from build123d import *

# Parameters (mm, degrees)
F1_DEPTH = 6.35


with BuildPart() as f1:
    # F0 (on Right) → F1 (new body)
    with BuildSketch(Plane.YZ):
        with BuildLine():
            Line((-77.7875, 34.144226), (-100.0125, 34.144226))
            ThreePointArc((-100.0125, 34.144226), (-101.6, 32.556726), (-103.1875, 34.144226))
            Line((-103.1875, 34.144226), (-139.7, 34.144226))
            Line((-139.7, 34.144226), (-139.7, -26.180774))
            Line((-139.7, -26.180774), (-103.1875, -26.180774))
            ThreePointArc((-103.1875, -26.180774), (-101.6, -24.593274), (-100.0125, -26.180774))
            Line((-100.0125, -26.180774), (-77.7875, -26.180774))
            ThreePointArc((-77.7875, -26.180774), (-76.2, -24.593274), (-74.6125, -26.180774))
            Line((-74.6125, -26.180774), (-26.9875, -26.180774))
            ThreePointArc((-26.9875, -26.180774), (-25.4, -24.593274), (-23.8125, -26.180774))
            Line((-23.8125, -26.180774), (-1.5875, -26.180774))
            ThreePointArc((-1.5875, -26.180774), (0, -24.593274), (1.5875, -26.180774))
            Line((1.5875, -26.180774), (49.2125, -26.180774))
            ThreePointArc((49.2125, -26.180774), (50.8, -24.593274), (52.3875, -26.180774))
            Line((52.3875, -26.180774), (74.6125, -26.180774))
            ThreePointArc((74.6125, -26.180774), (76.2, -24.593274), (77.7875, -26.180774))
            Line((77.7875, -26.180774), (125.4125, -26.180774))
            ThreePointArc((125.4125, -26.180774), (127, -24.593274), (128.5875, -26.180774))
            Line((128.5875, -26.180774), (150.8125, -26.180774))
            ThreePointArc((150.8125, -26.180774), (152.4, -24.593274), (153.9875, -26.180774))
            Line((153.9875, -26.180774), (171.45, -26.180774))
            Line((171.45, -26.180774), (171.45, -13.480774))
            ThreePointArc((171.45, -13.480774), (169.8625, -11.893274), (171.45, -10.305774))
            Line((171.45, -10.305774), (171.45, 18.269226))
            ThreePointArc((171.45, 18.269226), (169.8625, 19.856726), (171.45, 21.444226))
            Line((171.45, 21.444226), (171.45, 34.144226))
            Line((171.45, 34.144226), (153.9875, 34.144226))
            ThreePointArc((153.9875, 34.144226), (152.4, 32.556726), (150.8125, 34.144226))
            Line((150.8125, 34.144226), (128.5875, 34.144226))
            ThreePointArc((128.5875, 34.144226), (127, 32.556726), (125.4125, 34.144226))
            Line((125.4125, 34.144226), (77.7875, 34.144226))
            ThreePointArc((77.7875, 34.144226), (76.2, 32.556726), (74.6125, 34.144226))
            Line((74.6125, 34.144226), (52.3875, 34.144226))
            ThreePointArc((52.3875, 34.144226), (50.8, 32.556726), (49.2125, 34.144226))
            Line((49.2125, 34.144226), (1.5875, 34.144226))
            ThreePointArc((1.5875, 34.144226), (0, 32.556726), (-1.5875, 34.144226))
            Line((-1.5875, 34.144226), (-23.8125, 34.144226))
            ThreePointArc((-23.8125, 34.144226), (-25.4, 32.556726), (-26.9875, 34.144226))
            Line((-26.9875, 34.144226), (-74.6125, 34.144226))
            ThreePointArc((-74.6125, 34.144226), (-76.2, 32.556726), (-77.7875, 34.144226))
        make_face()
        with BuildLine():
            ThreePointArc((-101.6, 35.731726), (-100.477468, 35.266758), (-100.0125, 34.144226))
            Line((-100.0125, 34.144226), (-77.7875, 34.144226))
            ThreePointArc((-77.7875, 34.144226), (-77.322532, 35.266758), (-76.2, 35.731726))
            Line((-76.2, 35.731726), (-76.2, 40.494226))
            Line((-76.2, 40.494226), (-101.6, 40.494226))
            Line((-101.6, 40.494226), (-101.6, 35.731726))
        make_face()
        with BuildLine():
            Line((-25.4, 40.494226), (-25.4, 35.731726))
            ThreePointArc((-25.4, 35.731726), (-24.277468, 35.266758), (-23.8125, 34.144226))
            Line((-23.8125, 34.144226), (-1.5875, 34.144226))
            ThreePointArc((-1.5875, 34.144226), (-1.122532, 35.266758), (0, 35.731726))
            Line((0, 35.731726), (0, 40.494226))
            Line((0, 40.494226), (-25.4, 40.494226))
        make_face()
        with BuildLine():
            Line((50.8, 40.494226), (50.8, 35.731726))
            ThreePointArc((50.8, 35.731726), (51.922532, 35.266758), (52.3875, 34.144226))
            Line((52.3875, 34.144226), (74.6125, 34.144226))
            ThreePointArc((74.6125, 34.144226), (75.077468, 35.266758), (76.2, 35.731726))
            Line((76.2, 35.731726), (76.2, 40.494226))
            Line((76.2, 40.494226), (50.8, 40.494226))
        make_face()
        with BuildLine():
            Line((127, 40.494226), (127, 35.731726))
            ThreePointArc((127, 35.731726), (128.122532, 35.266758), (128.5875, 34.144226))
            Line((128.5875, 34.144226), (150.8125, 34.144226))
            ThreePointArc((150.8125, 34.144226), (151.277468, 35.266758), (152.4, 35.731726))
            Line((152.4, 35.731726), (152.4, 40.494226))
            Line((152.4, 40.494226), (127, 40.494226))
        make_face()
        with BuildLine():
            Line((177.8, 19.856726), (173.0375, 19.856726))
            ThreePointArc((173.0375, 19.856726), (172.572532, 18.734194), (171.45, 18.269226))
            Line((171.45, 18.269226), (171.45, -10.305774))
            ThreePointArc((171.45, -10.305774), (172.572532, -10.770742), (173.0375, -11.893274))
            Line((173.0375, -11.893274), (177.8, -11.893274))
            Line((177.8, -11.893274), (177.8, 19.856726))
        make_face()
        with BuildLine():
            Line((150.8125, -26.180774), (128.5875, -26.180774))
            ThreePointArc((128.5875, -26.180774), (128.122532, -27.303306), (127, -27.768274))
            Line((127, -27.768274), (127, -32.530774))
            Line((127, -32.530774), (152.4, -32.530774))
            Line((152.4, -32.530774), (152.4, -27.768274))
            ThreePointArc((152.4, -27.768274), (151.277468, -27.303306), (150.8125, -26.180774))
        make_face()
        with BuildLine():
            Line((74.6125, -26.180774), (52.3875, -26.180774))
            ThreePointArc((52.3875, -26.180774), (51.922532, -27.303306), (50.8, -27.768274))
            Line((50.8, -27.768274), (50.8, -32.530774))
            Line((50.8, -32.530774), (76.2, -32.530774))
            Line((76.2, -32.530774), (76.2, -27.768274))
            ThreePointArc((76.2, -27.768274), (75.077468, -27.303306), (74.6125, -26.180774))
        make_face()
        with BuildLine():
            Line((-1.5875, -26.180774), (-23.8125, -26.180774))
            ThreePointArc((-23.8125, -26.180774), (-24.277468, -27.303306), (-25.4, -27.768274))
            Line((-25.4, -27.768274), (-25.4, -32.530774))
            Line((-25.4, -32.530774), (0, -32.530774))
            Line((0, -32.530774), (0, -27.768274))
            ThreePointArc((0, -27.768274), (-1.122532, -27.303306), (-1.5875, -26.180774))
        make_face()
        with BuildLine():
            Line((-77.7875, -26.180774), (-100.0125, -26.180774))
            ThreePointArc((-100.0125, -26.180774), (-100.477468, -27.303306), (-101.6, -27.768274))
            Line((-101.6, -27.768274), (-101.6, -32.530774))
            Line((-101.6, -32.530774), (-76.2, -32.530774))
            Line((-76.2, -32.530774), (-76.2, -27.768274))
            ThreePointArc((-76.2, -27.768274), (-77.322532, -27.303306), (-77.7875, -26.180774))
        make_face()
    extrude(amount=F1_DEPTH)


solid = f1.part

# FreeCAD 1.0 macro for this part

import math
import FreeCAD as App
import Part
import Sketcher

V = App.Vector
Q = App.Units.Quantity

doc = App.newDocument("Part")
body = doc.addObject("PartDesign::Body", "Body")

sketch1 = body.newObject("Sketcher::SketchObject", "Sketch")
sketch1.AttachmentSupport = (doc.getObject("YZ_Plane"), [""])
sketch1.MapMode = "FlatFace"
sketch1.addGeometry([
    Part.ArcOfCircle(Part.Circle(V(-101.6, 34.1, 0), V(0, 0, 1), 1.6), math.radians(180), math.radians(360)),
    Part.LineSegment(V(-103.2, 34.1, 0), V(-139.7, 34.1, 0)),
    Part.LineSegment(V(-139.7, 34.1, 0), V(-139.7, -26.2, 0)),
    Part.LineSegment(V(-139.7, -26.2, 0), V(-103.2, -26.2, 0)),
    Part.ArcOfCircle(Part.Circle(V(-101.6, -26.2, 0), V(0, 0, 1), 1.6), math.radians(0), math.radians(180)),
    Part.ArcOfCircle(Part.Circle(V(-101.6, -26.2, 0), V(0, 0, 1), 1.6), math.radians(-90), math.radians(0)),
    Part.LineSegment(V(-101.6, -27.8, 0), V(-101.6, -32.5, 0)),
    Part.LineSegment(V(-101.6, -32.5, 0), V(-76.2, -32.5, 0)),
    Part.LineSegment(V(-76.2, -32.5, 0), V(-76.2, -27.8, 0)),
    Part.ArcOfCircle(Part.Circle(V(-76.2, -26.2, 0), V(0, 0, 1), 1.6), math.radians(-180), math.radians(-90)),
    Part.ArcOfCircle(Part.Circle(V(-76.2, -26.2, 0), V(0, 0, 1), 1.6), math.radians(0), math.radians(180)),
    Part.LineSegment(V(-74.6, -26.2, 0), V(-27, -26.2, 0)),
    Part.ArcOfCircle(Part.Circle(V(-25.4, -26.2, 0), V(0, 0, 1), 1.6), math.radians(0), math.radians(180)),
    Part.ArcOfCircle(Part.Circle(V(-25.4, -26.2, 0), V(0, 0, 1), 1.6), math.radians(-90), math.radians(0)),
    Part.LineSegment(V(-25.4, -27.8, 0), V(-25.4, -32.5, 0)),
    Part.LineSegment(V(-25.4, -32.5, 0), V(0, -32.5, 0)),
    Part.LineSegment(V(0, -32.5, 0), V(0, -27.8, 0)),
    Part.ArcOfCircle(Part.Circle(V(0, -26.2, 0), V(0, 0, 1), 1.6), math.radians(-180), math.radians(-90)),
    Part.ArcOfCircle(Part.Circle(V(0, -26.2, 0), V(0, 0, 1), 1.6), math.radians(0), math.radians(180)),
    Part.LineSegment(V(1.6, -26.2, 0), V(49.2, -26.2, 0)),
    Part.ArcOfCircle(Part.Circle(V(50.8, -26.2, 0), V(0, 0, 1), 1.6), math.radians(0), math.radians(180)),
    Part.ArcOfCircle(Part.Circle(V(50.8, -26.2, 0), V(0, 0, 1), 1.6), math.radians(-90), math.radians(0)),
    Part.LineSegment(V(50.8, -27.8, 0), V(50.8, -32.5, 0)),
    Part.LineSegment(V(50.8, -32.5, 0), V(76.2, -32.5, 0)),
    Part.LineSegment(V(76.2, -32.5, 0), V(76.2, -27.8, 0)),
    Part.ArcOfCircle(Part.Circle(V(76.2, -26.2, 0), V(0, 0, 1), 1.6), math.radians(-180), math.radians(-90)),
    Part.ArcOfCircle(Part.Circle(V(76.2, -26.2, 0), V(0, 0, 1), 1.6), math.radians(0), math.radians(180)),
    Part.LineSegment(V(77.8, -26.2, 0), V(125.4, -26.2, 0)),
    Part.ArcOfCircle(Part.Circle(V(127, -26.2, 0), V(0, 0, 1), 1.6), math.radians(0), math.radians(180)),
    Part.ArcOfCircle(Part.Circle(V(127, -26.2, 0), V(0, 0, 1), 1.6), math.radians(-90), math.radians(0)),
    Part.LineSegment(V(127, -27.8, 0), V(127, -32.5, 0)),
    Part.LineSegment(V(127, -32.5, 0), V(152.4, -32.5, 0)),
    Part.LineSegment(V(152.4, -32.5, 0), V(152.4, -27.8, 0)),
    Part.ArcOfCircle(Part.Circle(V(152.4, -26.2, 0), V(0, 0, 1), 1.6), math.radians(-180), math.radians(-90)),
    Part.ArcOfCircle(Part.Circle(V(152.4, -26.2, 0), V(0, 0, 1), 1.6), math.radians(0), math.radians(180)),
    Part.LineSegment(V(154, -26.2, 0), V(171.4, -26.2, 0)),
    Part.LineSegment(V(171.4, -26.2, 0), V(171.4, -13.5, 0)),
    Part.ArcOfCircle(Part.Circle(V(171.4, -11.9, 0), V(0, 0, 1), 1.6), math.radians(90), math.radians(270)),
    Part.ArcOfCircle(Part.Circle(V(171.4, -11.9, 0), V(0, 0, 1), 1.6), math.radians(0), math.radians(90)),
    Part.LineSegment(V(173, -11.9, 0), V(177.8, -11.9, 0)),
    Part.LineSegment(V(177.8, -11.9, 0), V(177.8, 19.9, 0)),
    Part.LineSegment(V(177.8, 19.9, 0), V(173, 19.9, 0)),
    Part.ArcOfCircle(Part.Circle(V(171.4, 19.9, 0), V(0, 0, 1), 1.6), math.radians(-90), math.radians(0)),
    Part.ArcOfCircle(Part.Circle(V(171.4, 19.9, 0), V(0, 0, 1), 1.6), math.radians(90), math.radians(270)),
    Part.LineSegment(V(171.4, 21.4, 0), V(171.4, 34.1, 0)),
    Part.LineSegment(V(171.4, 34.1, 0), V(154, 34.1, 0)),
    Part.ArcOfCircle(Part.Circle(V(152.4, 34.1, 0), V(0, 0, 1), 1.6), math.radians(180), math.radians(360)),
    Part.ArcOfCircle(Part.Circle(V(152.4, 34.1, 0), V(0, 0, 1), 1.6), math.radians(90), math.radians(180)),
    Part.LineSegment(V(152.4, 35.7, 0), V(152.4, 40.5, 0)),
    Part.LineSegment(V(152.4, 40.5, 0), V(127, 40.5, 0)),
    Part.LineSegment(V(127, 40.5, 0), V(127, 35.7, 0)),
    Part.ArcOfCircle(Part.Circle(V(127, 34.1, 0), V(0, 0, 1), 1.6), math.radians(0), math.radians(90)),
    Part.ArcOfCircle(Part.Circle(V(127, 34.1, 0), V(0, 0, 1), 1.6), math.radians(180), math.radians(360)),
    Part.LineSegment(V(125.4, 34.1, 0), V(77.8, 34.1, 0)),
    Part.ArcOfCircle(Part.Circle(V(76.2, 34.1, 0), V(0, 0, 1), 1.6), math.radians(180), math.radians(360)),
    Part.ArcOfCircle(Part.Circle(V(76.2, 34.1, 0), V(0, 0, 1), 1.6), math.radians(90), math.radians(180)),
    Part.LineSegment(V(76.2, 35.7, 0), V(76.2, 40.5, 0)),
    Part.LineSegment(V(76.2, 40.5, 0), V(50.8, 40.5, 0)),
    Part.LineSegment(V(50.8, 40.5, 0), V(50.8, 35.7, 0)),
    Part.ArcOfCircle(Part.Circle(V(50.8, 34.1, 0), V(0, 0, 1), 1.6), math.radians(0), math.radians(90)),
    Part.ArcOfCircle(Part.Circle(V(50.8, 34.1, 0), V(0, 0, 1), 1.6), math.radians(180), math.radians(360)),
    Part.LineSegment(V(49.2, 34.1, 0), V(1.6, 34.1, 0)),
    Part.ArcOfCircle(Part.Circle(V(0, 34.1, 0), V(0, 0, 1), 1.6), math.radians(180), math.radians(360)),
    Part.ArcOfCircle(Part.Circle(V(0, 34.1, 0), V(0, 0, 1), 1.6), math.radians(90), math.radians(180)),
    Part.LineSegment(V(0, 35.7, 0), V(0, 40.5, 0)),
    Part.LineSegment(V(0, 40.5, 0), V(-25.4, 40.5, 0)),
    Part.LineSegment(V(-25.4, 40.5, 0), V(-25.4, 35.7, 0)),
    Part.ArcOfCircle(Part.Circle(V(-25.4, 34.1, 0), V(0, 0, 1), 1.6), math.radians(0), math.radians(90)),
    Part.ArcOfCircle(Part.Circle(V(-25.4, 34.1, 0), V(0, 0, 1), 1.6), math.radians(180), math.radians(360)),
    Part.LineSegment(V(-27, 34.1, 0), V(-74.6, 34.1, 0)),
    Part.ArcOfCircle(Part.Circle(V(-76.2, 34.1, 0), V(0, 0, 1), 1.6), math.radians(180), math.radians(360)),
    Part.ArcOfCircle(Part.Circle(V(-76.2, 34.1, 0), V(0, 0, 1), 1.6), math.radians(90), math.radians(180)),
    Part.LineSegment(V(-76.2, 35.7, 0), V(-76.2, 40.5, 0)),
    Part.LineSegment(V(-76.2, 40.5, 0), V(-101.6, 40.5, 0)),
    Part.LineSegment(V(-101.6, 40.5, 0), V(-101.6, 35.7, 0)),
    Part.ArcOfCircle(Part.Circle(V(-101.6, 34.1, 0), V(0, 0, 1), 1.6), math.radians(0), math.radians(90)),
], False)
sketch1.addConstraint([
    Sketcher.Constraint("Coincident", 0, 1, 1, 1),
    Sketcher.Constraint("Coincident", 1, 2, 2, 1),
    Sketcher.Constraint("Coincident", 2, 2, 3, 1),
    Sketcher.Constraint("Coincident", 3, 2, 4, 2),
    Sketcher.Constraint("Tangent", 4, 1, 5, 2),
    Sketcher.Constraint("Coincident", 5, 1, 6, 1),
    Sketcher.Constraint("Coincident", 6, 2, 7, 1),
    Sketcher.Constraint("Coincident", 7, 2, 8, 1),
    Sketcher.Constraint("Coincident", 8, 2, 9, 2),
    Sketcher.Constraint("Tangent", 9, 1, 10, 2),
    Sketcher.Constraint("Coincident", 10, 1, 11, 1),
    Sketcher.Constraint("Coincident", 11, 2, 12, 2),
    Sketcher.Constraint("Tangent", 12, 1, 13, 2),
    Sketcher.Constraint("Coincident", 13, 1, 14, 1),
    Sketcher.Constraint("Coincident", 14, 2, 15, 1),
    Sketcher.Constraint("Coincident", 15, 2, 16, 1),
    Sketcher.Constraint("Coincident", 16, 2, 17, 2),
    Sketcher.Constraint("Tangent", 17, 1, 18, 2),
    Sketcher.Constraint("Coincident", 18, 1, 19, 1),
    Sketcher.Constraint("Coincident", 19, 2, 20, 2),
    Sketcher.Constraint("Tangent", 20, 1, 21, 2),
    Sketcher.Constraint("Coincident", 21, 1, 22, 1),
    Sketcher.Constraint("Coincident", 22, 2, 23, 1),
    Sketcher.Constraint("Coincident", 23, 2, 24, 1),
    Sketcher.Constraint("Coincident", 24, 2, 25, 2),
    Sketcher.Constraint("Tangent", 25, 1, 26, 2),
    Sketcher.Constraint("Coincident", 26, 1, 27, 1),
    Sketcher.Constraint("Coincident", 27, 2, 28, 2),
    Sketcher.Constraint("Tangent", 28, 1, 29, 2),
    Sketcher.Constraint("Coincident", 29, 1, 30, 1),
    Sketcher.Constraint("Coincident", 30, 2, 31, 1),
    Sketcher.Constraint("Coincident", 31, 2, 32, 1),
    Sketcher.Constraint("Coincident", 32, 2, 33, 2),
    Sketcher.Constraint("Tangent", 33, 1, 34, 2),
    Sketcher.Constraint("Coincident", 34, 1, 35, 1),
    Sketcher.Constraint("Coincident", 35, 2, 36, 1),
    Sketcher.Constraint("Coincident", 36, 2, 37, 2),
    Sketcher.Constraint("Tangent", 37, 1, 38, 2),
    Sketcher.Constraint("Coincident", 38, 1, 39, 1),
    Sketcher.Constraint("Coincident", 39, 2, 40, 1),
    Sketcher.Constraint("Coincident", 40, 2, 41, 1),
    Sketcher.Constraint("Coincident", 41, 2, 42, 2),
    Sketcher.Constraint("Tangent", 42, 1, 43, 2),
    Sketcher.Constraint("Coincident", 43, 1, 44, 1),
    Sketcher.Constraint("Coincident", 44, 2, 45, 1),
    Sketcher.Constraint("Coincident", 45, 2, 46, 2),
    Sketcher.Constraint("Tangent", 46, 1, 47, 2),
    Sketcher.Constraint("Coincident", 47, 1, 48, 1),
    Sketcher.Constraint("Coincident", 48, 2, 49, 1),
    Sketcher.Constraint("Coincident", 49, 2, 50, 1),
    Sketcher.Constraint("Coincident", 50, 2, 51, 2),
    Sketcher.Constraint("Tangent", 51, 1, 52, 2),
    Sketcher.Constraint("Coincident", 52, 1, 53, 1),
    Sketcher.Constraint("Coincident", 53, 2, 54, 2),
    Sketcher.Constraint("Tangent", 54, 1, 55, 2),
    Sketcher.Constraint("Coincident", 55, 1, 56, 1),
    Sketcher.Constraint("Coincident", 56, 2, 57, 1),
    Sketcher.Constraint("Coincident", 57, 2, 58, 1),
    Sketcher.Constraint("Coincident", 58, 2, 59, 2),
    Sketcher.Constraint("Tangent", 59, 1, 60, 2),
    Sketcher.Constraint("Coincident", 60, 1, 61, 1),
    Sketcher.Constraint("Coincident", 61, 2, 62, 2),
    Sketcher.Constraint("Tangent", 62, 1, 63, 2),
    Sketcher.Constraint("Coincident", 63, 1, 64, 1),
    Sketcher.Constraint("Coincident", 64, 2, 65, 1),
    Sketcher.Constraint("Coincident", 65, 2, 66, 1),
    Sketcher.Constraint("Coincident", 66, 2, 67, 2),
    Sketcher.Constraint("Tangent", 67, 1, 68, 2),
    Sketcher.Constraint("Coincident", 68, 1, 69, 1),
    Sketcher.Constraint("Coincident", 69, 2, 70, 2),
    Sketcher.Constraint("Tangent", 70, 1, 71, 2),
    Sketcher.Constraint("Coincident", 71, 1, 72, 1),
    Sketcher.Constraint("Coincident", 72, 2, 73, 1),
    Sketcher.Constraint("Coincident", 73, 2, 74, 1),
    Sketcher.Constraint("Coincident", 74, 2, 75, 2),
    Sketcher.Constraint("Tangent", 75, 1, 0, 2),
    Sketcher.Constraint("Horizontal", 1),
    Sketcher.Constraint("Vertical", 2),
    Sketcher.Constraint("Horizontal", 3),
    Sketcher.Constraint("Vertical", 6),
    Sketcher.Constraint("Horizontal", 7),
    Sketcher.Constraint("Vertical", 8),
    Sketcher.Constraint("Horizontal", 11),
    Sketcher.Constraint("Vertical", 14),
    Sketcher.Constraint("Horizontal", 15),
    Sketcher.Constraint("Vertical", 16),
    Sketcher.Constraint("Horizontal", 19),
    Sketcher.Constraint("Vertical", 22),
    Sketcher.Constraint("Horizontal", 23),
    Sketcher.Constraint("Vertical", 24),
    Sketcher.Constraint("Horizontal", 27),
    Sketcher.Constraint("Vertical", 30),
    Sketcher.Constraint("Horizontal", 31),
    Sketcher.Constraint("Vertical", 32),
    Sketcher.Constraint("Horizontal", 35),
    Sketcher.Constraint("Vertical", 36),
    Sketcher.Constraint("Horizontal", 39),
    Sketcher.Constraint("Vertical", 40),
    Sketcher.Constraint("Horizontal", 41),
    Sketcher.Constraint("Vertical", 44),
    Sketcher.Constraint("Horizontal", 45),
    Sketcher.Constraint("Vertical", 48),
    Sketcher.Constraint("Horizontal", 49),
    Sketcher.Constraint("Vertical", 50),
    Sketcher.Constraint("Horizontal", 53),
    Sketcher.Constraint("Vertical", 56),
    Sketcher.Constraint("Horizontal", 57),
    Sketcher.Constraint("Vertical", 58),
    Sketcher.Constraint("Horizontal", 61),
    Sketcher.Constraint("Vertical", 64),
    Sketcher.Constraint("Horizontal", 65),
    Sketcher.Constraint("Vertical", 66),
    Sketcher.Constraint("Horizontal", 69),
    Sketcher.Constraint("Vertical", 72),
    Sketcher.Constraint("Horizontal", 73),
    Sketcher.Constraint("Vertical", 74),
    Sketcher.Constraint("Equal", 0, 4),
    Sketcher.Constraint("Equal", 4, 5),
    Sketcher.Constraint("Equal", 5, 9),
    Sketcher.Constraint("Equal", 9, 10),
    Sketcher.Constraint("Equal", 10, 12),
    Sketcher.Constraint("Equal", 12, 13),
    Sketcher.Constraint("Equal", 13, 17),
    Sketcher.Constraint("Equal", 17, 18),
    Sketcher.Constraint("Equal", 18, 20),
    Sketcher.Constraint("Equal", 20, 21),
    Sketcher.Constraint("Equal", 21, 25),
    Sketcher.Constraint("Equal", 25, 26),
    Sketcher.Constraint("Equal", 26, 28),
    Sketcher.Constraint("Equal", 28, 29),
    Sketcher.Constraint("Equal", 29, 33),
    Sketcher.Constraint("Equal", 33, 34),
    Sketcher.Constraint("Equal", 34, 37),
    Sketcher.Constraint("Equal", 37, 38),
    Sketcher.Constraint("Equal", 38, 42),
    Sketcher.Constraint("Equal", 42, 43),
    Sketcher.Constraint("Equal", 43, 46),
    Sketcher.Constraint("Equal", 46, 47),
    Sketcher.Constraint("Equal", 47, 51),
    Sketcher.Constraint("Equal", 51, 52),
    Sketcher.Constraint("Equal", 52, 54),
    Sketcher.Constraint("Equal", 54, 55),
    Sketcher.Constraint("Equal", 55, 59),
    Sketcher.Constraint("Equal", 59, 60),
    Sketcher.Constraint("Equal", 60, 62),
    Sketcher.Constraint("Equal", 62, 63),
    Sketcher.Constraint("Equal", 63, 67),
    Sketcher.Constraint("Equal", 67, 68),
    Sketcher.Constraint("Equal", 68, 70),
    Sketcher.Constraint("Equal", 70, 71),
    Sketcher.Constraint("Equal", 71, 75),
    Sketcher.Constraint("Symmetric", 9, 3, 25, 3, -2),
    Sketcher.Constraint("Symmetric", 54, 3, 70, 3, -2),
    Sketcher.Constraint("Symmetric", 17, 1, 18, 1, -2),
    Sketcher.Constraint("Symmetric", 7, 2, 23, 2, -2),
    Sketcher.Constraint("Symmetric", 61, 2, 62, 1, -2),
    Sketcher.Constraint("Symmetric", 56, 2, 72, 2, -2),
    Sketcher.Constraint("PointOnObject", 15, 2, -2),
    Sketcher.Constraint("PointOnObject", 63, 1, -2),
    Sketcher.Constraint("Horizontal", 5, 3, 9, 3),
    Sketcher.Constraint("Horizontal", 10, 3, 12, 3),
    Sketcher.Constraint("Horizontal", 13, 3, 17, 3),
    Sketcher.Constraint("Horizontal", 18, 3, 20, 3),
    Sketcher.Constraint("Horizontal", 26, 3, 28, 3),
    Sketcher.Constraint("Horizontal", 29, 3, 33, 3),
    Sketcher.Constraint("Horizontal", 0, 3, 46, 3),
    Sketcher.Constraint("Horizontal", 47, 3, 51, 3),
    Sketcher.Constraint("Horizontal", 52, 3, 54, 3),
    Sketcher.Constraint("Horizontal", 55, 3, 59, 3),
    Sketcher.Constraint("Horizontal", 60, 3, 62, 3),
    Sketcher.Constraint("Horizontal", 63, 3, 67, 3),
    Sketcher.Constraint("Horizontal", 75, 3, 0, 1),
    Sketcher.Constraint("Horizontal", 34, 3, 2, 2),
    Sketcher.Constraint("Horizontal", 3, 2, 4, 1),
    Sketcher.Constraint("Horizontal", 4, 1, 9, 1),
    Sketcher.Constraint("Horizontal", 9, 1, 10, 1),
    Sketcher.Constraint("Horizontal", 11, 2, 12, 1),
    Sketcher.Constraint("Horizontal", 7, 2, 14, 2),
    Sketcher.Constraint("Horizontal", 12, 1, 17, 1),
    Sketcher.Constraint("Horizontal", 19, 2, 20, 1),
    Sketcher.Constraint("Horizontal", 20, 1, 25, 1),
    Sketcher.Constraint("Horizontal", 25, 1, 26, 1),
    Sketcher.Constraint("Horizontal", 27, 2, 28, 1),
    Sketcher.Constraint("Horizontal", 23, 2, 30, 2),
    Sketcher.Constraint("Horizontal", 28, 1, 33, 1),
    Sketcher.Constraint("Horizontal", 33, 1, 34, 1),
    Sketcher.Constraint("Horizontal", 37, 3, 38, 1),
    Sketcher.Constraint("Horizontal", 43, 3, 40, 2),
    Sketcher.Constraint("Horizontal", 1, 2, 44, 2),
    Sketcher.Constraint("Horizontal", 45, 2, 46, 1),
    Sketcher.Constraint("Horizontal", 46, 1, 51, 1),
    Sketcher.Constraint("Horizontal", 51, 1, 52, 1),
    Sketcher.Constraint("Horizontal", 53, 2, 54, 1),
    Sketcher.Constraint("Horizontal", 49, 2, 56, 2),
    Sketcher.Constraint("Horizontal", 54, 1, 59, 1),
    Sketcher.Constraint("Horizontal", 59, 1, 60, 1),
    Sketcher.Constraint("Horizontal", 57, 2, 64, 2),
    Sketcher.Constraint("Horizontal", 62, 1, 67, 1),
    Sketcher.Constraint("Horizontal", 67, 1, 68, 1),
    Sketcher.Constraint("Horizontal", 69, 2, 70, 1),
    Sketcher.Constraint("Horizontal", 70, 1, 75, 1),
    Sketcher.Constraint("Vertical", 0, 3, 4, 3),
    Sketcher.Constraint("Vertical", 38, 3, 42, 3),
    Sketcher.Constraint("Vertical", 34, 3, 46, 3),
    Sketcher.Constraint("Vertical", 29, 3, 51, 3),
    Sketcher.Constraint("Vertical", 26, 3, 54, 3),
    Sketcher.Constraint("Vertical", 21, 3, 59, 3),
    Sketcher.Constraint("Vertical", 13, 3, 67, 3),
    Sketcher.Constraint("Vertical", 75, 3, 5, 1),
    Sketcher.Constraint("Vertical", 71, 3, 7, 2),
    Sketcher.Constraint("Vertical", 68, 3, 13, 1),
    Sketcher.Constraint("Vertical", 60, 3, 21, 1),
    Sketcher.Constraint("Vertical", 52, 3, 29, 1),
    Sketcher.Constraint("Vertical", 47, 3, 31, 2),
    Sketcher.Constraint("Vertical", 43, 3, 35, 2),
    Sketcher.Constraint("Vertical", 36, 2, 37, 1),
    Sketcher.Constraint("Vertical", 37, 1, 42, 1),
    Sketcher.Constraint("Vertical", 42, 1, 43, 1),
    Sketcher.Constraint("Vertical", 32, 2, 47, 1),
    Sketcher.Constraint("Vertical", 30, 2, 49, 2),
    Sketcher.Constraint("Vertical", 24, 2, 55, 1),
    Sketcher.Constraint("Vertical", 22, 2, 57, 2),
    Sketcher.Constraint("Vertical", 14, 2, 65, 2),
    Sketcher.Constraint("Vertical", 6, 2, 73, 2),
    Sketcher.Constraint("Equal", 7, 15),
    Sketcher.Constraint("Equal", 11, 19),
    Sketcher.Constraint("Equal", 19, 27),
    Sketcher.Constraint("Equal", 23, 31),
    Sketcher.Constraint("Equal", 41, 6),
    Sketcher.Constraint("Equal", 36, 44),
    Sketcher.Constraint("Equal", 32, 48),
    Sketcher.Constraint("DistanceX", 7, 1, 7, 2, Q("1 in")),
    Sketcher.Constraint("DistanceY", 36, 1, 36, 2, Q("0.5 in")),
    Sketcher.Constraint("DistanceX", 0, 3, -1, 1, Q("4 in")),
    Sketcher.Constraint("DistanceX", -1, 1, 39, 2, Q("7 in")),
    Sketcher.Constraint("Radius", 0, Q("0.0625 in")),
    Sketcher.Constraint("DistanceY", 40, 1, 40, 2, Q("1.25 in")),
    Sketcher.Constraint("DistanceX", 1, 2, -1, 1, Q("5.5 in")),
    Sketcher.Constraint("DistanceX", 35, 1, 35, 2, Q("0.6875 in")),
    Sketcher.Constraint("DistanceY", -1, 1, 0, 3, 34.144226),
])
pad1 = body.newObject("PartDesign::Pad", "Pad")
pad1.Profile = sketch1
pad1.Length = Q("0.25 in")

doc.recompute()
